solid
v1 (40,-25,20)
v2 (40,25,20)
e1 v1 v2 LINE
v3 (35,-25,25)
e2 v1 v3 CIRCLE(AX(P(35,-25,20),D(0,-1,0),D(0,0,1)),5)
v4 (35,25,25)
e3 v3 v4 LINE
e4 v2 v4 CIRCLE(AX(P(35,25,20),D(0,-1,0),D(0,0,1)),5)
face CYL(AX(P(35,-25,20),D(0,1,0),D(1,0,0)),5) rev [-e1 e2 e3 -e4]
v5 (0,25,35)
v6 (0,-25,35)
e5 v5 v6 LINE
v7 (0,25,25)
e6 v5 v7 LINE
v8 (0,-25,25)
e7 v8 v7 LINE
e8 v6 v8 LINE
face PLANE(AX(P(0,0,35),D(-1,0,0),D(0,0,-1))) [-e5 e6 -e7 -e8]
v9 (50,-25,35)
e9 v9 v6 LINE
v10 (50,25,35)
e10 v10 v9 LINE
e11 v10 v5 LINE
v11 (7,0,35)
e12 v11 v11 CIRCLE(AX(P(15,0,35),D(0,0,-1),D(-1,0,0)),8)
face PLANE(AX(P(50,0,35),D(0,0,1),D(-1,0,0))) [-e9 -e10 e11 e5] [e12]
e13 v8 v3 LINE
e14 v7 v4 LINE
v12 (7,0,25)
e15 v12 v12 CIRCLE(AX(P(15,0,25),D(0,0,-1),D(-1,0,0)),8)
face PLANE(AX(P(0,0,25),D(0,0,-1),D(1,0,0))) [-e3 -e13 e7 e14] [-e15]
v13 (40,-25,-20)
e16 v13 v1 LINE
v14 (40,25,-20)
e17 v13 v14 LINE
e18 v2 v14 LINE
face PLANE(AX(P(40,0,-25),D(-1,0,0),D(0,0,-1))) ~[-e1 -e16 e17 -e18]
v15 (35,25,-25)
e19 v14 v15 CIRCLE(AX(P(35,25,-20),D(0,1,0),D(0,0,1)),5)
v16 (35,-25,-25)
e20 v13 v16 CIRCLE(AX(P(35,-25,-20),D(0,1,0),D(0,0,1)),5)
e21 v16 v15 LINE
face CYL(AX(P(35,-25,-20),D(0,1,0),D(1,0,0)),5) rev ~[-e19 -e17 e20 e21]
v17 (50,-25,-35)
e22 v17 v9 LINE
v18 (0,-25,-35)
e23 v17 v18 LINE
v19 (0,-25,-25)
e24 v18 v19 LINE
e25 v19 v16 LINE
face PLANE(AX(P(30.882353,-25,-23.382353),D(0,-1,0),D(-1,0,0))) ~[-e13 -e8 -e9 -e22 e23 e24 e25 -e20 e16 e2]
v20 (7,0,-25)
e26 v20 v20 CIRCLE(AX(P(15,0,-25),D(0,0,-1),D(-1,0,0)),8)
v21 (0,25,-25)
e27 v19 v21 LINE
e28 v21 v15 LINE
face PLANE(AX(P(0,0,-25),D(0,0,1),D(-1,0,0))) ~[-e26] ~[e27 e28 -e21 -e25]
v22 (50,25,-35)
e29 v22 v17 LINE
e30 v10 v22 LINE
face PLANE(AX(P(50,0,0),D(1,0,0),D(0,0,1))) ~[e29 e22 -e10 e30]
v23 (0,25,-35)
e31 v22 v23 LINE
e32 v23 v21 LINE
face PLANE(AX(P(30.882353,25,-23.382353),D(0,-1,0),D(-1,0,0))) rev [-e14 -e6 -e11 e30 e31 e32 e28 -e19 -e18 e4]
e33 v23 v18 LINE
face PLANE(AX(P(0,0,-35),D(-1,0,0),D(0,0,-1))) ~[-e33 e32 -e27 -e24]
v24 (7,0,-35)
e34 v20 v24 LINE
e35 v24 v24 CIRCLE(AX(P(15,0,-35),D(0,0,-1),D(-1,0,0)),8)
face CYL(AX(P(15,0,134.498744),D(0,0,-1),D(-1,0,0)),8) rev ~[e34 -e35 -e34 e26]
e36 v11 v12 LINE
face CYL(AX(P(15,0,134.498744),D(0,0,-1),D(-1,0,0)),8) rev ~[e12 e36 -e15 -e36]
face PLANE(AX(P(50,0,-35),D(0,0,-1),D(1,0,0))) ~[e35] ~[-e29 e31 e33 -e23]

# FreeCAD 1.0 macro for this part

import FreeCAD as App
import Part
import Sketcher
from FreeCAD import Vector


def edges_at(feature, points):
    """Names of the edges that pass closest to the given points."""
    edges = feature.Shape.Edges
    near = lambda p: min(range(len(edges)), key=lambda i: edges[i].distToShape(Part.Vertex(*p))[0])
    return sorted({f"Edge{near(p) + 1}" for p in points})

doc = App.newDocument("Part")
body = doc.addObject("PartDesign::Body", "Body")

sketch1 = body.newObject("Sketcher::SketchObject", "Sketch")
sketch1.AttachmentSupport = (doc.getObject("XZ_Plane"), [""])
sketch1.MapMode = "FlatFace"
sketch1.addGeometry([
    Part.LineSegment(Vector(40, 0, 0), Vector(50, 0, 0)),
    Part.LineSegment(Vector(50, 0, 0), Vector(50, 35, 0)),
    Part.LineSegment(Vector(50, 35, 0), Vector(0, 35, 0)),
    Part.LineSegment(Vector(0, 35, 0), Vector(0, 25, 0)),
    Part.LineSegment(Vector(0, 25, 0), Vector(40, 25, 0)),
    Part.LineSegment(Vector(40, 25, 0), Vector(40, 0, 0)),
], False)
sketch1.addConstraint([
    Sketcher.Constraint("Coincident", 0, 2, 1, 1),
    Sketcher.Constraint("Coincident", 1, 2, 2, 1),
    Sketcher.Constraint("Coincident", 2, 2, 3, 1),
    Sketcher.Constraint("Coincident", 3, 2, 4, 1),
    Sketcher.Constraint("Coincident", 4, 2, 5, 1),
    Sketcher.Constraint("Coincident", 5, 2, 0, 1),
    Sketcher.Constraint("Horizontal", 0),
    Sketcher.Constraint("Vertical", 1),
    Sketcher.Constraint("Horizontal", 2),
    Sketcher.Constraint("Vertical", 3),
    Sketcher.Constraint("Horizontal", 4),
    Sketcher.Constraint("Vertical", 5),
    Sketcher.Constraint("PointOnObject", 0, 2, -1),
    Sketcher.Constraint("PointOnObject", 2, 2, -2),
    Sketcher.Constraint("Equal", 0, 3),
    Sketcher.Constraint("DistanceX", 0, 1, 0, 2, 10.0),
    Sketcher.Constraint("DistanceX", 2, 2, 2, 1, 50.0),
    Sketcher.Constraint("DistanceY", 1, 1, 1, 2, 35.0),
])
pad1 = body.newObject("PartDesign::Pad", "Pad")
pad1.Profile = sketch1
pad1.Length = 50
pad1.Midplane = True
body2 = doc.addObject("PartDesign::Body", "Body001")
doc.recompute()

body2.BaseFeature = body
doc.recompute()

mirroring = doc.addObject("Part::Mirroring", "Mirroring")
mirroring.Source = body
mirroring.Base = Vector(0, 0, 0)
mirroring.Normal = Vector(0, 0, 1)
body3 = doc.addObject("PartDesign::Body", "Body002")
body3.BaseFeature = mirroring
boolean = body2.newObject("PartDesign::Boolean", "Boolean")
boolean.Type = "Fuse"
boolean.addObjects([body3])
doc.recompute()

sketch2 = body2.newObject("Sketcher::SketchObject", "Sketch001")
sketch2.AttachmentSupport = (doc.getObject("XY_Plane001"), [""])
sketch2.MapMode = "FlatFace"
sketch2.AttachmentOffset = App.Placement(Vector(0, 0, 35), App.Rotation())
sketch2.addGeometry(Part.Circle(Vector(15, 0, 0), Vector(0, 0, 1), 8), False)
sketch2.addConstraint([
    Sketcher.Constraint("PointOnObject", 0, 3, -1),
    Sketcher.Constraint("Diameter", 0, 16.0),
    Sketcher.Constraint("DistanceX", -1, 1, 0, 3, 15.0),
])
doc.recompute()
hole = body2.newObject("PartDesign::Hole", "Hole")
hole.Profile = sketch2
hole.ThreadType = "None"
hole.Diameter = 16
hole.DepthType = "ThroughAll"
doc.recompute()

fillet = body2.newObject("PartDesign::Fillet", "Fillet")
fillet.Base = (hole, edges_at(hole, [(40, 0, 25), (40, 0, -25)]))
fillet.Radius = 5
mirroring.Visibility = False

doc.recompute()
